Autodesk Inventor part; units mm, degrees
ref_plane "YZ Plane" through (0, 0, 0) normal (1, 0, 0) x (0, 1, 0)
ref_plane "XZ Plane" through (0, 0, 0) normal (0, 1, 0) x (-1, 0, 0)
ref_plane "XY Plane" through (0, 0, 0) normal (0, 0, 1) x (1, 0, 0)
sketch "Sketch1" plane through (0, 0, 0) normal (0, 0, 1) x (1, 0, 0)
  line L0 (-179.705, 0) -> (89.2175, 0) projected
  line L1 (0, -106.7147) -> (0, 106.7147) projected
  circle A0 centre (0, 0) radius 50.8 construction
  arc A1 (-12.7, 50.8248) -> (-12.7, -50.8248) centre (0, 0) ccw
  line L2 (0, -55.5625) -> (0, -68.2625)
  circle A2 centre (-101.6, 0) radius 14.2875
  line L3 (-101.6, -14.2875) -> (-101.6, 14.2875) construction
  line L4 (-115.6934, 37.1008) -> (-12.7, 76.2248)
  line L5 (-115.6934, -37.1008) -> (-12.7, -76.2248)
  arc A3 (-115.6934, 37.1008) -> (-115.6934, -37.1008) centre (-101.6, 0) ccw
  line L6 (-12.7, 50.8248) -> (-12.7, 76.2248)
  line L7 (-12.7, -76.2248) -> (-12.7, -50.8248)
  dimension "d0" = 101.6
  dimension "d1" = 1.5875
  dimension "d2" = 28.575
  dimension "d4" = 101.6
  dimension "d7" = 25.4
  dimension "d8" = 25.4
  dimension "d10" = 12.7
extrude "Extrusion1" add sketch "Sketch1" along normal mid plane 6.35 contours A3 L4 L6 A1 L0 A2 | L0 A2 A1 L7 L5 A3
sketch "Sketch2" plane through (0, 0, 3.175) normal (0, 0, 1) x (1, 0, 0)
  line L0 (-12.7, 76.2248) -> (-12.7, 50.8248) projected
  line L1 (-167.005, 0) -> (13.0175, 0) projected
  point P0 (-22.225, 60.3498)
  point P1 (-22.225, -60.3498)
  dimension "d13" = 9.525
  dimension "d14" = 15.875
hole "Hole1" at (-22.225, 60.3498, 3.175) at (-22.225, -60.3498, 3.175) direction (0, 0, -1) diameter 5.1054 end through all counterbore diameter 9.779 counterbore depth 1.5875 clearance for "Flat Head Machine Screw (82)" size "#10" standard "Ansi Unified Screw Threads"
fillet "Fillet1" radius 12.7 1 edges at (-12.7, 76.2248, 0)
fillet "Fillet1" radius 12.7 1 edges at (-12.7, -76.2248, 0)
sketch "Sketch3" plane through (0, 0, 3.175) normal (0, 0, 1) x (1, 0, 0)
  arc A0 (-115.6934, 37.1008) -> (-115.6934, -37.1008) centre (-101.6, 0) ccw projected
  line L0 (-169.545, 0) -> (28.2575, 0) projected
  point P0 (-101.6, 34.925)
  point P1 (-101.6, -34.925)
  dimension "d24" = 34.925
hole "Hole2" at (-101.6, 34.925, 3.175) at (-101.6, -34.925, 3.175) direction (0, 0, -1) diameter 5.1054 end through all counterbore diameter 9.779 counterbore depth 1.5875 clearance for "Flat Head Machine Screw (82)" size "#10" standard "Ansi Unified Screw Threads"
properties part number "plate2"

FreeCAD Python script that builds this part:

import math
import FreeCAD as App
import Part
import Sketcher
from FreeCAD import Vector
Q = App.Units.Quantity


def edges_at(feature, points):
    """Names of the edges that pass closest to the given points."""
    edges = feature.Shape.Edges
    near = lambda p: min(range(len(edges)), key=lambda i: edges[i].distToShape(Part.Vertex(*p))[0])
    return sorted({f"Edge{near(p) + 1}" for p in points})

doc = App.newDocument("Part")
body = doc.addObject("PartDesign::Body", "Body")

# Sketch on XY plane
sketch1 = body.newObject("Sketcher::SketchObject", "Sketch")
sketch1.AttachmentSupport = (doc.getObject("XY_Plane"), [""])
sketch1.MapMode = "FlatFace"
sketch1.addGeometry(Part.ArcOfCircle(Part.Circle(Vector(-102, 0, 0), Vector(0, 0, 1), 40), math.radians(111), math.radians(249)), False)
sketch1.addGeometry(Part.LineSegment(Vector(-116, -37, 0), Vector(-13, -76, 0)), False)
sketch1.addGeometry(Part.LineSegment(Vector(-13, -76, 0), Vector(-13, -51, 0)), False)
sketch1.addGeometry(Part.ArcOfCircle(Part.Circle(Vector(0, 0, 0), Vector(0, 0, 1), 52), math.radians(104), math.radians(256)), False)
sketch1.addGeometry(Part.LineSegment(Vector(-13, 51, 0), Vector(-13, 76, 0)), False)
sketch1.addGeometry(Part.LineSegment(Vector(-13, 76, 0), Vector(-116, 37, 0)), False)
sketch1.addGeometry(Part.Circle(Vector(-102, 0, 0), Vector(0, 0, 1), 14), False)
sketch1.addConstraint(Sketcher.Constraint("Tangent", 0, 2, 1, 1))
sketch1.addConstraint(Sketcher.Constraint("Coincident", 1, 2, 2, 1))
sketch1.addConstraint(Sketcher.Constraint("Coincident", 2, 2, 3, 2))
sketch1.addConstraint(Sketcher.Constraint("Coincident", 3, 1, 4, 1))
sketch1.addConstraint(Sketcher.Constraint("Coincident", 4, 2, 5, 1))
sketch1.addConstraint(Sketcher.Constraint("Tangent", 5, 2, 0, 1))
sketch1.addConstraint(Sketcher.Constraint("Vertical", 2))
sketch1.addConstraint(Sketcher.Constraint("Vertical", 4))
sketch1.addConstraint(Sketcher.Constraint("Coincident", 3, 3, -1, 1))
sketch1.addConstraint(Sketcher.Constraint("Coincident", 6, 3, 0, 3))
sketch1.addConstraint(Sketcher.Constraint("Symmetric", 1, 2, 4, 2, -1))
sketch1.addConstraint(Sketcher.Constraint("PointOnObject", 0, 3, -1))
sketch1.addConstraint(Sketcher.Constraint("DistanceY", 2, 1, 2, 2, Q("1 in")))
sketch1.addConstraint(Sketcher.Constraint("Diameter", 6, Q("1.125 in")))
sketch1.addConstraint(Sketcher.Constraint("DistanceX", 0, 3, -1, 1, Q("4 in")))
sketch1.addConstraint(Sketcher.Constraint("DistanceX", 1, 2, -1, 1, Q("0.5 in")))
sketch1.addConstraint(Sketcher.Constraint("Radius", 0, Q("1.5625 in")))
sketch1.addConstraint(Sketcher.Constraint("Radius", 3, Q("2.0625 in")))
pad1 = body.newObject("PartDesign::Pad", "Pad")
pad1.Profile = sketch1
pad1.Length = Q("0.25 in")
pad1.Midplane = True

# Sketch on XY plane
sketch2 = body.newObject("Sketcher::SketchObject", "Sketch001")
sketch2.AttachmentSupport = (doc.getObject("XY_Plane"), [""])
sketch2.MapMode = "FlatFace"
sketch2.AttachmentOffset = App.Placement(Vector(0, 0, 0.125 * 25.4), App.Rotation())
sketch2.addGeometry(Part.Circle(Vector(-22.2, 60.3, 0), Vector(0, 0, 1), 2.6), False)
sketch2.addGeometry(Part.Circle(Vector(-22.2, -60.3, 0), Vector(0, 0, 1), 2.6), False)
sketch2.addConstraint(Sketcher.Constraint("Equal", 0, 1))
sketch2.addConstraint(Sketcher.Constraint("Symmetric", 0, 3, 1, 3, -1))
sketch2.addConstraint(Sketcher.Constraint("Diameter", 0, Q("0.201 in")))
sketch2.addConstraint(Sketcher.Constraint("DistanceX", 0, 3, -1, 1, Q("0.875 in")))
sketch2.addConstraint(Sketcher.Constraint("DistanceY", -1, 1, 0, 3, 60.3498))
doc.recompute()
hole = body.newObject("PartDesign::Hole", "Hole")
hole.Profile = sketch2
hole.ThreadType = "None"
hole.Diameter = Q("0.201 in")
hole.DepthType = "ThroughAll"
hole.HoleCutType = "Counterbore"
hole.HoleCutDiameter = Q("0.385 in")
hole.HoleCutDepth = Q("0.0625 in")
doc.recompute()

fillet = body.newObject("PartDesign::Fillet", "Fillet")
fillet.Base = (hole, edges_at(hole, [(-12.7, 76.225, 0)]))
fillet.Radius = Q("0.5 in")
doc.recompute()

fillet2 = body.newObject("PartDesign::Fillet", "Fillet001")
fillet2.Base = (fillet, edges_at(fillet, [(-12.7, -76.225, 0)]))
fillet2.Radius = Q("0.5 in")

# Sketch on XY plane
sketch3 = body.newObject("Sketcher::SketchObject", "Sketch002")
sketch3.AttachmentSupport = (doc.getObject("XY_Plane"), [""])
sketch3.MapMode = "FlatFace"
sketch3.AttachmentOffset = App.Placement(Vector(0, 0, 0.125 * 25.4), App.Rotation())
sketch3.addGeometry(Part.Circle(Vector(-101.6, 34.9, 0), Vector(0, 0, 1), 2.6), False)
sketch3.addGeometry(Part.Circle(Vector(-101.6, -34.9, 0), Vector(0, 0, 1), 2.6), False)
sketch3.addConstraint(Sketcher.Constraint("Equal", 0, 1))
sketch3.addConstraint(Sketcher.Constraint("Symmetric", 0, 3, 1, 3, -1))
sketch3.addConstraint(Sketcher.Constraint("Diameter", 0, Q("0.201 in")))
sketch3.addConstraint(Sketcher.Constraint("DistanceX", 0, 3, -1, 1, Q("4 in")))
sketch3.addConstraint(Sketcher.Constraint("DistanceY", 1, 3, 0, 3, Q("2.75 in")))
doc.recompute()
hole2 = body.newObject("PartDesign::Hole", "Hole001")
hole2.Profile = sketch3
hole2.ThreadType = "None"
hole2.Diameter = Q("0.201 in")
hole2.DepthType = "ThroughAll"
hole2.HoleCutType = "Counterbore"
hole2.HoleCutDiameter = Q("0.385 in")
hole2.HoleCutDepth = Q("0.0625 in")

doc.recompute()
